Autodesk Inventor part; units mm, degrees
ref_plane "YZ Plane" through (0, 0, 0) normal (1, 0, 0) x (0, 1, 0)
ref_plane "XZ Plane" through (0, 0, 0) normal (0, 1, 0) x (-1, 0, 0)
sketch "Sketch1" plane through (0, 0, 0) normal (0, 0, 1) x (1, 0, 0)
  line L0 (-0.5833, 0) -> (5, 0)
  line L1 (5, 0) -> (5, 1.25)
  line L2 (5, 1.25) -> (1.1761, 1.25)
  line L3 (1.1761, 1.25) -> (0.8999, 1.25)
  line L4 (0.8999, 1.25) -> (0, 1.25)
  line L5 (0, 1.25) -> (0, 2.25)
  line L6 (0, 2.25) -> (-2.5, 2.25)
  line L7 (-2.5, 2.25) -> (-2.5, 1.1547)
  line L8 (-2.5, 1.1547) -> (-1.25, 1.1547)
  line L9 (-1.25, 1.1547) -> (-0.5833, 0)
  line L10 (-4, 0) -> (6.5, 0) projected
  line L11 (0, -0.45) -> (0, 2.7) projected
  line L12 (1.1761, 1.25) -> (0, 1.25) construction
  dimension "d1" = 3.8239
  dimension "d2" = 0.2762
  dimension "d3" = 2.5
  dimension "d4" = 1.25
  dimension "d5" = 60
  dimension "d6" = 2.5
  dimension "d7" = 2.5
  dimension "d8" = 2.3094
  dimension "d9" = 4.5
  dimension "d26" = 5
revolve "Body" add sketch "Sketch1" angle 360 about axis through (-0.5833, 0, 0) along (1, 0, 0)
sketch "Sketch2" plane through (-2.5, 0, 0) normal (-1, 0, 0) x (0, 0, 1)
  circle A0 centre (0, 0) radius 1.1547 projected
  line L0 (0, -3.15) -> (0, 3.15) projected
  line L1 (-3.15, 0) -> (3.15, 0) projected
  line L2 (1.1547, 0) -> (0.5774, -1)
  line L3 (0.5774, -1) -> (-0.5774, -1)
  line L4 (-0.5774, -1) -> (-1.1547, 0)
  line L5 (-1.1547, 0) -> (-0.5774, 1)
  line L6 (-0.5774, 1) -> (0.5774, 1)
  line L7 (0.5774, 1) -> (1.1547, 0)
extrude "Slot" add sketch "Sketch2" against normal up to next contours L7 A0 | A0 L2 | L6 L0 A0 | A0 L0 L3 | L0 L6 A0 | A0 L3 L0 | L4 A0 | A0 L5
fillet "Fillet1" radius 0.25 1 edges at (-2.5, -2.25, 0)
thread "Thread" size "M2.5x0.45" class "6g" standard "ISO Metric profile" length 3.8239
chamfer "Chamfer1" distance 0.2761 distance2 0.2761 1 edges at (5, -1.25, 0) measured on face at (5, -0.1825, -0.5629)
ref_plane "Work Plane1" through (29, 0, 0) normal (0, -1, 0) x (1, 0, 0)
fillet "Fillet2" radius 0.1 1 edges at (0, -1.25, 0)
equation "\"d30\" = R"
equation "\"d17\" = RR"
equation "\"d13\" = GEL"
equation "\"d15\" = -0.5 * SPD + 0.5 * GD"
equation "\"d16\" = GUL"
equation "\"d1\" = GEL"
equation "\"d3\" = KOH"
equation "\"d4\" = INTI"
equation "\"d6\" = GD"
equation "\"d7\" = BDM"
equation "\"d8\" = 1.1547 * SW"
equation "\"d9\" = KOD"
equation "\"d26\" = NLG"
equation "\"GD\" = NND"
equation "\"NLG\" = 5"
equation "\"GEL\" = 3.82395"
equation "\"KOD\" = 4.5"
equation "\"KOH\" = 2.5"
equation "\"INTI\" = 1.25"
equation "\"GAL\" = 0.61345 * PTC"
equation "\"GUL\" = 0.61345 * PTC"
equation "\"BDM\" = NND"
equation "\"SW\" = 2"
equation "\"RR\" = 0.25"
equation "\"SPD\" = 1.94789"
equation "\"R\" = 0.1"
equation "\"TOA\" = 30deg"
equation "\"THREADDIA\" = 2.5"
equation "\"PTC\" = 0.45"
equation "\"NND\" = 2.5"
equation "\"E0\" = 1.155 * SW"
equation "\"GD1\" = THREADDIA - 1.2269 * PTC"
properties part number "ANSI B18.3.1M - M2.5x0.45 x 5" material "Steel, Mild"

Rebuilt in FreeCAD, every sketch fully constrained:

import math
import FreeCAD as App
import Part
import Sketcher
from FreeCAD import Vector


def edges_at(feature, points):
    """Names of the edges that pass closest to the given points."""
    edges = feature.Shape.Edges
    near = lambda p: min(range(len(edges)), key=lambda i: edges[i].distToShape(Part.Vertex(*p))[0])
    return sorted({f"Edge{near(p) + 1}" for p in points})


def add_polygon(sketch, points):
    """Adds a closed chain of lines whose ends are joined by coincident constraints."""
    first, n = sketch.GeometryCount, len(points)
    for a, b in zip(points, points[1:] + points[:1]):
        sketch.addGeometry(Part.LineSegment(App.Vector(*a, 0), App.Vector(*b, 0)), False)
    for i in range(n):
        sketch.addConstraint(Sketcher.Constraint("Coincident", first + i, 2, first + (i + 1) % n, 1))

doc = App.newDocument("Part")
body = doc.addObject("PartDesign::Body", "Body")

sketch1 = body.newObject("Sketcher::SketchObject", "Sketch")
sketch1.AttachmentSupport = (doc.getObject("XY_Plane"), [""])
sketch1.MapMode = "FlatFace"
add_polygon(sketch1, [(-1.2, 1.2), (-0.6, 0), (5, 0), (5, 1.2), (0, 1.2), (0, 2.2), (-2.5, 2.2), (-2.5, 1.2)])
sketch1.addConstraint([
    Sketcher.Constraint("Horizontal", 1),
    Sketcher.Constraint("Vertical", 2),
    Sketcher.Constraint("Horizontal", 3),
    Sketcher.Constraint("Vertical", 4),
    Sketcher.Constraint("Horizontal", 5),
    Sketcher.Constraint("Vertical", 6),
    Sketcher.Constraint("Horizontal", 7),
    Sketcher.Constraint("PointOnObject", 0, 2, -1),
    Sketcher.Constraint("PointOnObject", 3, 2, -2),
    Sketcher.Constraint("Equal", 7, 2),
    Sketcher.Constraint("DistanceX", 3, 2, 3, 1, 5.0),
    Sketcher.Constraint("DistanceX", 5, 2, 5, 1, 2.5),
    Sketcher.Constraint("DistanceX", 7, 1, 7, 2, 1.25),
    Sketcher.Constraint("DistanceY", 4, 1, 4, 2, 1.0),
    Sketcher.Constraint("DistanceX", 1, 1, 1, 2, 5.5833),
    Sketcher.Constraint("DistanceY", 6, 2, 6, 1, 1.0953),
])
revolution = body.newObject("PartDesign::Revolution", "Revolution")
revolution.Profile = sketch1
revolution.ReferenceAxis = (sketch1, ["H_Axis"])
revolution.Angle = 360

sketch2 = body.newObject("Sketcher::SketchObject", "Sketch001")
sketch2.AttachmentSupport = (doc.getObject("YZ_Plane"), [""])
sketch2.MapMode = "FlatFace"
sketch2.AttachmentOffset = App.Placement(Vector(0, 0, -2.5), App.Rotation())
sketch2.addGeometry([
    Part.LineSegment(Vector(1, 0.6, 0), Vector(0, 1.2, 0)),
    Part.ArcOfCircle(Part.Circle(Vector(0, 0, 0), Vector(0, 0, 1), 1.2), math.radians(30), math.radians(90)),
    Part.ArcOfCircle(Part.Circle(Vector(0, 0, 0), Vector(0, 0, 1), 1.2), math.radians(90), math.radians(150)),
    Part.LineSegment(Vector(0, 1.2, 0), Vector(-1, 0.6, 0)),
    Part.ArcOfCircle(Part.Circle(Vector(0, 0, 0), Vector(0, 0, 1), 1.2), math.radians(-30), math.radians(30)),
    Part.LineSegment(Vector(1, 0.6, 0), Vector(1, -0.6, 0)),
    Part.LineSegment(Vector(-1, 0.6, 0), Vector(-1, -0.6, 0)),
    Part.ArcOfCircle(Part.Circle(Vector(0, 0, 0), Vector(0, 0, 1), 1.2), math.radians(150), math.radians(210)),
    Part.LineSegment(Vector(-1, -0.6, 0), Vector(0, -1.2, 0)),
    Part.ArcOfCircle(Part.Circle(Vector(0, 0, 0), Vector(0, 0, 1), 1.2), math.radians(-150), math.radians(-90)),
    Part.ArcOfCircle(Part.Circle(Vector(0, 0, 0), Vector(0, 0, 1), 1.2), math.radians(-90), math.radians(-30)),
    Part.LineSegment(Vector(0, -1.2, 0), Vector(1, -0.6, 0)),
], False)
sketch2.addConstraint([
    Sketcher.Constraint("Coincident", 0, 1, 1, 1),
    Sketcher.Constraint("Coincident", 1, 2, 0, 2),
    Sketcher.Constraint("Coincident", 2, 1, 3, 1),
    Sketcher.Constraint("Coincident", 3, 2, 2, 2),
    Sketcher.Constraint("Coincident", 4, 1, 5, 2),
    Sketcher.Constraint("Coincident", 5, 1, 4, 2),
    Sketcher.Constraint("Coincident", 6, 1, 7, 1),
    Sketcher.Constraint("Coincident", 7, 2, 6, 2),
    Sketcher.Constraint("Coincident", 8, 1, 9, 1),
    Sketcher.Constraint("Coincident", 9, 2, 8, 2),
    Sketcher.Constraint("Coincident", 10, 1, 11, 1),
    Sketcher.Constraint("Coincident", 11, 2, 10, 2),
    Sketcher.Constraint("Vertical", 5),
    Sketcher.Constraint("Vertical", 6),
    Sketcher.Constraint("Coincident", 1, 3, -1, 1),
    Sketcher.Constraint("Coincident", 2, 3, -1, 1),
    Sketcher.Constraint("Coincident", 4, 3, -1, 1),
    Sketcher.Constraint("Coincident", 7, 3, -1, 1),
    Sketcher.Constraint("Coincident", 9, 3, -1, 1),
    Sketcher.Constraint("Coincident", 10, 3, -1, 1),
    Sketcher.Constraint("Coincident", 2, 1, 1, 2),
    Sketcher.Constraint("Coincident", 5, 1, 0, 1),
    Sketcher.Constraint("Coincident", 6, 1, 3, 2),
    Sketcher.Constraint("Coincident", 8, 1, 7, 2),
    Sketcher.Constraint("Coincident", 10, 1, 9, 2),
    Sketcher.Constraint("PointOnObject", 1, 2, -2),
    Sketcher.Constraint("PointOnObject", 9, 2, -2),
    Sketcher.Constraint("Parallel", 0, 8),
    Sketcher.Constraint("Parallel", 3, 11),
    Sketcher.Constraint("DistanceX", -1, 1, 0, 1, 1.0),
    Sketcher.Constraint("Radius", 1, 1.1547),
])
pad1 = body.newObject("PartDesign::Pad", "Pad")
pad1.Profile = sketch2
pad1.Length = 1.3393
doc.recompute()

fillet = body.newObject("PartDesign::Fillet", "Fillet")
fillet.Base = (pad1, edges_at(pad1, [(-2.5, -2.25, 0)]))
fillet.Radius = 0.25
doc.recompute()

chamfer = body.newObject("PartDesign::Chamfer", "Chamfer")
chamfer.Base = (fillet, edges_at(fillet, [(5, -1.25, 0)]))
chamfer.ChamferType = "Two distances"
chamfer.Size = 0.2761
chamfer.Size2 = 0.2761
doc.recompute()

fillet2 = body.newObject("PartDesign::Fillet", "Fillet001")
fillet2.Base = (chamfer, edges_at(chamfer, [(0, -1.25, 0)]))
fillet2.Radius = 0.1

doc.recompute()
